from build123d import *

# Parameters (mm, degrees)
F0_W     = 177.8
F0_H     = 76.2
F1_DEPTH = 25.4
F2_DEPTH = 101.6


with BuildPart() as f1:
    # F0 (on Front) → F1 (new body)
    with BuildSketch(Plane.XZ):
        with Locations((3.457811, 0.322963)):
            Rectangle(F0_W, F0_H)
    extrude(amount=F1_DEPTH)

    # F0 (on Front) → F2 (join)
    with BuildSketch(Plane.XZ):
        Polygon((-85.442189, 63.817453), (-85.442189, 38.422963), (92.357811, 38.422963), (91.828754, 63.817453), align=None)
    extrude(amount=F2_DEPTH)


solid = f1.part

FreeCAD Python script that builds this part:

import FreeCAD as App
import Part
import Sketcher

V = App.Vector
Q = App.Units.Quantity


def add_polygon(sketch, points):
    """Adds a closed chain of lines whose ends are joined by coincident constraints."""
    first, n = sketch.GeometryCount, len(points)
    for a, b in zip(points, points[1:] + points[:1]):
        sketch.addGeometry(Part.LineSegment(App.Vector(*a, 0), App.Vector(*b, 0)), False)
    for i in range(n):
        sketch.addConstraint(Sketcher.Constraint("Coincident", first + i, 2, first + (i + 1) % n, 1))

doc = App.newDocument("Part")
params = doc.addObject("Spreadsheet::Sheet", "Params")
for row, (alias, value) in enumerate([
    ("sketch1_width", "7 in"),
    ("sketch1_height", "3 in"),
    ("pad1_length", "1 in"),
    ("sketch2_width", "7 in"),
    ("sketch2_length", "1 in"),
    ("pad2_length", "4 in"),
], start=1):
    params.set(f"A{row}", alias)
    params.set(f"B{row}", "=" + value)
    params.setAlias(f"B{row}", alias)

body = doc.addObject("PartDesign::Body", "Body")

# Sketch on XZ plane
sketch1 = body.newObject("Sketcher::SketchObject", "Sketch")
sketch1.AttachmentSupport = (doc.getObject("XZ_Plane"), [""])
sketch1.MapMode = "FlatFace"
add_polygon(sketch1, [(-85, 38), (-85, -38), (92, -38), (92, 38)])  # lines 0-3
sketch1.addConstraint([
    Sketcher.Constraint("Vertical", 0),
    Sketcher.Constraint("Horizontal", 1),
    Sketcher.Constraint("Vertical", 2),
    Sketcher.Constraint("Horizontal", 3),
    Sketcher.Constraint("DistanceX", 1, 1, 1, 2, Q("7 in")),
    Sketcher.Constraint("DistanceY", 0, 2, 0, 1, Q("3 in")),
    Sketcher.Constraint("DistanceX", 0, 2, -1, 1, Q("85.442189 mm")),
    Sketcher.Constraint("DistanceY", 0, 2, -1, 1, Q("37.777037 mm")),
])
sketch1.setExpression("Constraints[8]", "Params.sketch1_width")
sketch1.setExpression("Constraints[9]", "Params.sketch1_height")
pad1 = body.newObject("PartDesign::Pad", "Pad")
pad1.Profile = sketch1
pad1.setExpression("Length", "Params.pad1_length")

# Sketch on XZ plane
sketch2 = body.newObject("Sketcher::SketchObject", "Sketch001")
sketch2.AttachmentSupport = (doc.getObject("XZ_Plane"), [""])
sketch2.MapMode = "FlatFace"
add_polygon(sketch2, [(-85.442189, 63.817453), (-85.442189, 38.422963), (92.357811, 38.422963), (91.828754, 63.817453)])  # lines 0-3
sketch2.addConstraint([
    Sketcher.Constraint("Vertical", 0),
    Sketcher.Constraint("Horizontal", 1),
    Sketcher.Constraint("Horizontal", 3),
    Sketcher.Constraint("DistanceX", 1, 1, 1, 2, Q("7 in")),
    Sketcher.Constraint("Distance", 2, Q("1 in")),
    Sketcher.Constraint("DistanceY", 0, 2, 0, 1, Q("25.39449 mm")),
    Sketcher.Constraint("DistanceX", 0, 2, -1, 1, Q("85.442189 mm")),
    Sketcher.Constraint("DistanceY", -1, 1, 0, 2, Q("38.422963 mm")),
])
sketch2.setExpression("Constraints[7]", "Params.sketch2_width")
sketch2.setExpression("Constraints[8]", "Params.sketch2_length")
pad2 = body.newObject("PartDesign::Pad", "Pad001")
pad2.Profile = sketch2
pad2.setExpression("Length", "Params.pad2_length")

doc.recompute()
